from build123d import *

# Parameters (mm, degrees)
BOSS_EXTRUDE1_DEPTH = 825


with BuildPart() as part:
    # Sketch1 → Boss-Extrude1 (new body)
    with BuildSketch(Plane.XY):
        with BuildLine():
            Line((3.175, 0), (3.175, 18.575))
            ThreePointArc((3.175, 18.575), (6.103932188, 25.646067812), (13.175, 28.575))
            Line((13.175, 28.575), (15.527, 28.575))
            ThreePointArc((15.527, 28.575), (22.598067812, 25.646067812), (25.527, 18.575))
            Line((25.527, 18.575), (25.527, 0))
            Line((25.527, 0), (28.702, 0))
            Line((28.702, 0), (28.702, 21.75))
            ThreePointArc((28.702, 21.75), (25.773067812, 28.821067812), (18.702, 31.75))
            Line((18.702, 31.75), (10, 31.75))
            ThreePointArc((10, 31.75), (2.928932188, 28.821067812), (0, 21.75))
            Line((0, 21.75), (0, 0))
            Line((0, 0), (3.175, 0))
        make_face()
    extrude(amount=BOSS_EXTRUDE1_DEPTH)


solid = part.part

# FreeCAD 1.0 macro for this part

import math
import FreeCAD as App
import Part
import Sketcher

doc = App.newDocument("Part")
body = doc.addObject("PartDesign::Body", "Body")

# Sketch on XY plane
sketch1 = body.newObject("Sketcher::SketchObject", "Sketch")
sketch1.AttachmentSupport = (doc.getObject("XY_Plane"), [""])
sketch1.MapMode = "FlatFace"
sketch1.addGeometry(Part.LineSegment(App.Vector(3.2, 0, 0), App.Vector(3.2, 18.6, 0)), False)
sketch1.addGeometry(Part.ArcOfCircle(Part.Circle(App.Vector(13.2, 18.6, 0), App.Vector(0, 0, 1), 10), math.radians(90), math.radians(180)), False)
sketch1.addGeometry(Part.LineSegment(App.Vector(13.2, 28.6, 0), App.Vector(15.5, 28.6, 0)), False)
sketch1.addGeometry(Part.ArcOfCircle(Part.Circle(App.Vector(15.5, 18.6, 0), App.Vector(0, 0, 1), 10), math.radians(0), math.radians(90)), False)
sketch1.addGeometry(Part.LineSegment(App.Vector(25.5, 18.6, 0), App.Vector(25.5, 0, 0)), False)
sketch1.addGeometry(Part.LineSegment(App.Vector(25.5, 0, 0), App.Vector(28.7, 0, 0)), False)
sketch1.addGeometry(Part.LineSegment(App.Vector(28.7, 0, 0), App.Vector(28.7, 21.8, 0)), False)
sketch1.addGeometry(Part.ArcOfCircle(Part.Circle(App.Vector(18.7, 21.8, 0), App.Vector(0, 0, 1), 10), math.radians(0), math.radians(90)), False)
sketch1.addGeometry(Part.LineSegment(App.Vector(18.7, 31.8, 0), App.Vector(10, 31.8, 0)), False)
sketch1.addGeometry(Part.ArcOfCircle(Part.Circle(App.Vector(10, 21.8, 0), App.Vector(0, 0, 1), 10), math.radians(90), math.radians(180)), False)
sketch1.addGeometry(Part.LineSegment(App.Vector(0, 21.8, 0), App.Vector(0, 0, 0)), False)
sketch1.addGeometry(Part.LineSegment(App.Vector(0, 0, 0), App.Vector(3.2, 0, 0)), False)
sketch1.addConstraint(Sketcher.Constraint("Tangent", 0, 2, 1, 2))
sketch1.addConstraint(Sketcher.Constraint("Tangent", 1, 1, 2, 1))
sketch1.addConstraint(Sketcher.Constraint("Tangent", 2, 2, 3, 2))
sketch1.addConstraint(Sketcher.Constraint("Tangent", 3, 1, 4, 1))
sketch1.addConstraint(Sketcher.Constraint("Coincident", 4, 2, 5, 1))
sketch1.addConstraint(Sketcher.Constraint("Coincident", 5, 2, 6, 1))
sketch1.addConstraint(Sketcher.Constraint("Tangent", 6, 2, 7, 1))
sketch1.addConstraint(Sketcher.Constraint("Tangent", 7, 2, 8, 1))
sketch1.addConstraint(Sketcher.Constraint("Tangent", 8, 2, 9, 1))
sketch1.addConstraint(Sketcher.Constraint("Tangent", 9, 2, 10, 1))
sketch1.addConstraint(Sketcher.Constraint("Coincident", 10, 2, 11, 1))
sketch1.addConstraint(Sketcher.Constraint("Coincident", 11, 2, 0, 1))
sketch1.addConstraint(Sketcher.Constraint("Vertical", 0))
sketch1.addConstraint(Sketcher.Constraint("Horizontal", 2))
sketch1.addConstraint(Sketcher.Constraint("Vertical", 4))
sketch1.addConstraint(Sketcher.Constraint("Horizontal", 5))
sketch1.addConstraint(Sketcher.Constraint("Vertical", 6))
sketch1.addConstraint(Sketcher.Constraint("Horizontal", 8))
sketch1.addConstraint(Sketcher.Constraint("Vertical", 10))
sketch1.addConstraint(Sketcher.Constraint("Horizontal", 11))
sketch1.addConstraint(Sketcher.Constraint("Coincident", 10, 2, -1, 1))
sketch1.addConstraint(Sketcher.Constraint("Equal", 1, 3))
sketch1.addConstraint(Sketcher.Constraint("Equal", 3, 7))
sketch1.addConstraint(Sketcher.Constraint("Equal", 7, 9))
sketch1.addConstraint(Sketcher.Constraint("PointOnObject", 4, 2, -1))
sketch1.addConstraint(Sketcher.Constraint("Equal", 5, 11))
sketch1.addConstraint(Sketcher.Constraint("Radius", 1, 10.0))
sketch1.addConstraint(Sketcher.Constraint("DistanceY", 6, 1, 6, 2, 21.75))
sketch1.addConstraint(Sketcher.Constraint("DistanceX", 2, 1, 2, 2, 2.352))
sketch1.addConstraint(Sketcher.Constraint("DistanceX", 5, 1, 5, 2, 3.175))
sketch1.addConstraint(Sketcher.Constraint("DistanceY", 0, 1, 0, 2, 18.575))
pad1 = body.newObject("PartDesign::Pad", "Pad")
pad1.Profile = sketch1
pad1.Length = 825

doc.recompute()
